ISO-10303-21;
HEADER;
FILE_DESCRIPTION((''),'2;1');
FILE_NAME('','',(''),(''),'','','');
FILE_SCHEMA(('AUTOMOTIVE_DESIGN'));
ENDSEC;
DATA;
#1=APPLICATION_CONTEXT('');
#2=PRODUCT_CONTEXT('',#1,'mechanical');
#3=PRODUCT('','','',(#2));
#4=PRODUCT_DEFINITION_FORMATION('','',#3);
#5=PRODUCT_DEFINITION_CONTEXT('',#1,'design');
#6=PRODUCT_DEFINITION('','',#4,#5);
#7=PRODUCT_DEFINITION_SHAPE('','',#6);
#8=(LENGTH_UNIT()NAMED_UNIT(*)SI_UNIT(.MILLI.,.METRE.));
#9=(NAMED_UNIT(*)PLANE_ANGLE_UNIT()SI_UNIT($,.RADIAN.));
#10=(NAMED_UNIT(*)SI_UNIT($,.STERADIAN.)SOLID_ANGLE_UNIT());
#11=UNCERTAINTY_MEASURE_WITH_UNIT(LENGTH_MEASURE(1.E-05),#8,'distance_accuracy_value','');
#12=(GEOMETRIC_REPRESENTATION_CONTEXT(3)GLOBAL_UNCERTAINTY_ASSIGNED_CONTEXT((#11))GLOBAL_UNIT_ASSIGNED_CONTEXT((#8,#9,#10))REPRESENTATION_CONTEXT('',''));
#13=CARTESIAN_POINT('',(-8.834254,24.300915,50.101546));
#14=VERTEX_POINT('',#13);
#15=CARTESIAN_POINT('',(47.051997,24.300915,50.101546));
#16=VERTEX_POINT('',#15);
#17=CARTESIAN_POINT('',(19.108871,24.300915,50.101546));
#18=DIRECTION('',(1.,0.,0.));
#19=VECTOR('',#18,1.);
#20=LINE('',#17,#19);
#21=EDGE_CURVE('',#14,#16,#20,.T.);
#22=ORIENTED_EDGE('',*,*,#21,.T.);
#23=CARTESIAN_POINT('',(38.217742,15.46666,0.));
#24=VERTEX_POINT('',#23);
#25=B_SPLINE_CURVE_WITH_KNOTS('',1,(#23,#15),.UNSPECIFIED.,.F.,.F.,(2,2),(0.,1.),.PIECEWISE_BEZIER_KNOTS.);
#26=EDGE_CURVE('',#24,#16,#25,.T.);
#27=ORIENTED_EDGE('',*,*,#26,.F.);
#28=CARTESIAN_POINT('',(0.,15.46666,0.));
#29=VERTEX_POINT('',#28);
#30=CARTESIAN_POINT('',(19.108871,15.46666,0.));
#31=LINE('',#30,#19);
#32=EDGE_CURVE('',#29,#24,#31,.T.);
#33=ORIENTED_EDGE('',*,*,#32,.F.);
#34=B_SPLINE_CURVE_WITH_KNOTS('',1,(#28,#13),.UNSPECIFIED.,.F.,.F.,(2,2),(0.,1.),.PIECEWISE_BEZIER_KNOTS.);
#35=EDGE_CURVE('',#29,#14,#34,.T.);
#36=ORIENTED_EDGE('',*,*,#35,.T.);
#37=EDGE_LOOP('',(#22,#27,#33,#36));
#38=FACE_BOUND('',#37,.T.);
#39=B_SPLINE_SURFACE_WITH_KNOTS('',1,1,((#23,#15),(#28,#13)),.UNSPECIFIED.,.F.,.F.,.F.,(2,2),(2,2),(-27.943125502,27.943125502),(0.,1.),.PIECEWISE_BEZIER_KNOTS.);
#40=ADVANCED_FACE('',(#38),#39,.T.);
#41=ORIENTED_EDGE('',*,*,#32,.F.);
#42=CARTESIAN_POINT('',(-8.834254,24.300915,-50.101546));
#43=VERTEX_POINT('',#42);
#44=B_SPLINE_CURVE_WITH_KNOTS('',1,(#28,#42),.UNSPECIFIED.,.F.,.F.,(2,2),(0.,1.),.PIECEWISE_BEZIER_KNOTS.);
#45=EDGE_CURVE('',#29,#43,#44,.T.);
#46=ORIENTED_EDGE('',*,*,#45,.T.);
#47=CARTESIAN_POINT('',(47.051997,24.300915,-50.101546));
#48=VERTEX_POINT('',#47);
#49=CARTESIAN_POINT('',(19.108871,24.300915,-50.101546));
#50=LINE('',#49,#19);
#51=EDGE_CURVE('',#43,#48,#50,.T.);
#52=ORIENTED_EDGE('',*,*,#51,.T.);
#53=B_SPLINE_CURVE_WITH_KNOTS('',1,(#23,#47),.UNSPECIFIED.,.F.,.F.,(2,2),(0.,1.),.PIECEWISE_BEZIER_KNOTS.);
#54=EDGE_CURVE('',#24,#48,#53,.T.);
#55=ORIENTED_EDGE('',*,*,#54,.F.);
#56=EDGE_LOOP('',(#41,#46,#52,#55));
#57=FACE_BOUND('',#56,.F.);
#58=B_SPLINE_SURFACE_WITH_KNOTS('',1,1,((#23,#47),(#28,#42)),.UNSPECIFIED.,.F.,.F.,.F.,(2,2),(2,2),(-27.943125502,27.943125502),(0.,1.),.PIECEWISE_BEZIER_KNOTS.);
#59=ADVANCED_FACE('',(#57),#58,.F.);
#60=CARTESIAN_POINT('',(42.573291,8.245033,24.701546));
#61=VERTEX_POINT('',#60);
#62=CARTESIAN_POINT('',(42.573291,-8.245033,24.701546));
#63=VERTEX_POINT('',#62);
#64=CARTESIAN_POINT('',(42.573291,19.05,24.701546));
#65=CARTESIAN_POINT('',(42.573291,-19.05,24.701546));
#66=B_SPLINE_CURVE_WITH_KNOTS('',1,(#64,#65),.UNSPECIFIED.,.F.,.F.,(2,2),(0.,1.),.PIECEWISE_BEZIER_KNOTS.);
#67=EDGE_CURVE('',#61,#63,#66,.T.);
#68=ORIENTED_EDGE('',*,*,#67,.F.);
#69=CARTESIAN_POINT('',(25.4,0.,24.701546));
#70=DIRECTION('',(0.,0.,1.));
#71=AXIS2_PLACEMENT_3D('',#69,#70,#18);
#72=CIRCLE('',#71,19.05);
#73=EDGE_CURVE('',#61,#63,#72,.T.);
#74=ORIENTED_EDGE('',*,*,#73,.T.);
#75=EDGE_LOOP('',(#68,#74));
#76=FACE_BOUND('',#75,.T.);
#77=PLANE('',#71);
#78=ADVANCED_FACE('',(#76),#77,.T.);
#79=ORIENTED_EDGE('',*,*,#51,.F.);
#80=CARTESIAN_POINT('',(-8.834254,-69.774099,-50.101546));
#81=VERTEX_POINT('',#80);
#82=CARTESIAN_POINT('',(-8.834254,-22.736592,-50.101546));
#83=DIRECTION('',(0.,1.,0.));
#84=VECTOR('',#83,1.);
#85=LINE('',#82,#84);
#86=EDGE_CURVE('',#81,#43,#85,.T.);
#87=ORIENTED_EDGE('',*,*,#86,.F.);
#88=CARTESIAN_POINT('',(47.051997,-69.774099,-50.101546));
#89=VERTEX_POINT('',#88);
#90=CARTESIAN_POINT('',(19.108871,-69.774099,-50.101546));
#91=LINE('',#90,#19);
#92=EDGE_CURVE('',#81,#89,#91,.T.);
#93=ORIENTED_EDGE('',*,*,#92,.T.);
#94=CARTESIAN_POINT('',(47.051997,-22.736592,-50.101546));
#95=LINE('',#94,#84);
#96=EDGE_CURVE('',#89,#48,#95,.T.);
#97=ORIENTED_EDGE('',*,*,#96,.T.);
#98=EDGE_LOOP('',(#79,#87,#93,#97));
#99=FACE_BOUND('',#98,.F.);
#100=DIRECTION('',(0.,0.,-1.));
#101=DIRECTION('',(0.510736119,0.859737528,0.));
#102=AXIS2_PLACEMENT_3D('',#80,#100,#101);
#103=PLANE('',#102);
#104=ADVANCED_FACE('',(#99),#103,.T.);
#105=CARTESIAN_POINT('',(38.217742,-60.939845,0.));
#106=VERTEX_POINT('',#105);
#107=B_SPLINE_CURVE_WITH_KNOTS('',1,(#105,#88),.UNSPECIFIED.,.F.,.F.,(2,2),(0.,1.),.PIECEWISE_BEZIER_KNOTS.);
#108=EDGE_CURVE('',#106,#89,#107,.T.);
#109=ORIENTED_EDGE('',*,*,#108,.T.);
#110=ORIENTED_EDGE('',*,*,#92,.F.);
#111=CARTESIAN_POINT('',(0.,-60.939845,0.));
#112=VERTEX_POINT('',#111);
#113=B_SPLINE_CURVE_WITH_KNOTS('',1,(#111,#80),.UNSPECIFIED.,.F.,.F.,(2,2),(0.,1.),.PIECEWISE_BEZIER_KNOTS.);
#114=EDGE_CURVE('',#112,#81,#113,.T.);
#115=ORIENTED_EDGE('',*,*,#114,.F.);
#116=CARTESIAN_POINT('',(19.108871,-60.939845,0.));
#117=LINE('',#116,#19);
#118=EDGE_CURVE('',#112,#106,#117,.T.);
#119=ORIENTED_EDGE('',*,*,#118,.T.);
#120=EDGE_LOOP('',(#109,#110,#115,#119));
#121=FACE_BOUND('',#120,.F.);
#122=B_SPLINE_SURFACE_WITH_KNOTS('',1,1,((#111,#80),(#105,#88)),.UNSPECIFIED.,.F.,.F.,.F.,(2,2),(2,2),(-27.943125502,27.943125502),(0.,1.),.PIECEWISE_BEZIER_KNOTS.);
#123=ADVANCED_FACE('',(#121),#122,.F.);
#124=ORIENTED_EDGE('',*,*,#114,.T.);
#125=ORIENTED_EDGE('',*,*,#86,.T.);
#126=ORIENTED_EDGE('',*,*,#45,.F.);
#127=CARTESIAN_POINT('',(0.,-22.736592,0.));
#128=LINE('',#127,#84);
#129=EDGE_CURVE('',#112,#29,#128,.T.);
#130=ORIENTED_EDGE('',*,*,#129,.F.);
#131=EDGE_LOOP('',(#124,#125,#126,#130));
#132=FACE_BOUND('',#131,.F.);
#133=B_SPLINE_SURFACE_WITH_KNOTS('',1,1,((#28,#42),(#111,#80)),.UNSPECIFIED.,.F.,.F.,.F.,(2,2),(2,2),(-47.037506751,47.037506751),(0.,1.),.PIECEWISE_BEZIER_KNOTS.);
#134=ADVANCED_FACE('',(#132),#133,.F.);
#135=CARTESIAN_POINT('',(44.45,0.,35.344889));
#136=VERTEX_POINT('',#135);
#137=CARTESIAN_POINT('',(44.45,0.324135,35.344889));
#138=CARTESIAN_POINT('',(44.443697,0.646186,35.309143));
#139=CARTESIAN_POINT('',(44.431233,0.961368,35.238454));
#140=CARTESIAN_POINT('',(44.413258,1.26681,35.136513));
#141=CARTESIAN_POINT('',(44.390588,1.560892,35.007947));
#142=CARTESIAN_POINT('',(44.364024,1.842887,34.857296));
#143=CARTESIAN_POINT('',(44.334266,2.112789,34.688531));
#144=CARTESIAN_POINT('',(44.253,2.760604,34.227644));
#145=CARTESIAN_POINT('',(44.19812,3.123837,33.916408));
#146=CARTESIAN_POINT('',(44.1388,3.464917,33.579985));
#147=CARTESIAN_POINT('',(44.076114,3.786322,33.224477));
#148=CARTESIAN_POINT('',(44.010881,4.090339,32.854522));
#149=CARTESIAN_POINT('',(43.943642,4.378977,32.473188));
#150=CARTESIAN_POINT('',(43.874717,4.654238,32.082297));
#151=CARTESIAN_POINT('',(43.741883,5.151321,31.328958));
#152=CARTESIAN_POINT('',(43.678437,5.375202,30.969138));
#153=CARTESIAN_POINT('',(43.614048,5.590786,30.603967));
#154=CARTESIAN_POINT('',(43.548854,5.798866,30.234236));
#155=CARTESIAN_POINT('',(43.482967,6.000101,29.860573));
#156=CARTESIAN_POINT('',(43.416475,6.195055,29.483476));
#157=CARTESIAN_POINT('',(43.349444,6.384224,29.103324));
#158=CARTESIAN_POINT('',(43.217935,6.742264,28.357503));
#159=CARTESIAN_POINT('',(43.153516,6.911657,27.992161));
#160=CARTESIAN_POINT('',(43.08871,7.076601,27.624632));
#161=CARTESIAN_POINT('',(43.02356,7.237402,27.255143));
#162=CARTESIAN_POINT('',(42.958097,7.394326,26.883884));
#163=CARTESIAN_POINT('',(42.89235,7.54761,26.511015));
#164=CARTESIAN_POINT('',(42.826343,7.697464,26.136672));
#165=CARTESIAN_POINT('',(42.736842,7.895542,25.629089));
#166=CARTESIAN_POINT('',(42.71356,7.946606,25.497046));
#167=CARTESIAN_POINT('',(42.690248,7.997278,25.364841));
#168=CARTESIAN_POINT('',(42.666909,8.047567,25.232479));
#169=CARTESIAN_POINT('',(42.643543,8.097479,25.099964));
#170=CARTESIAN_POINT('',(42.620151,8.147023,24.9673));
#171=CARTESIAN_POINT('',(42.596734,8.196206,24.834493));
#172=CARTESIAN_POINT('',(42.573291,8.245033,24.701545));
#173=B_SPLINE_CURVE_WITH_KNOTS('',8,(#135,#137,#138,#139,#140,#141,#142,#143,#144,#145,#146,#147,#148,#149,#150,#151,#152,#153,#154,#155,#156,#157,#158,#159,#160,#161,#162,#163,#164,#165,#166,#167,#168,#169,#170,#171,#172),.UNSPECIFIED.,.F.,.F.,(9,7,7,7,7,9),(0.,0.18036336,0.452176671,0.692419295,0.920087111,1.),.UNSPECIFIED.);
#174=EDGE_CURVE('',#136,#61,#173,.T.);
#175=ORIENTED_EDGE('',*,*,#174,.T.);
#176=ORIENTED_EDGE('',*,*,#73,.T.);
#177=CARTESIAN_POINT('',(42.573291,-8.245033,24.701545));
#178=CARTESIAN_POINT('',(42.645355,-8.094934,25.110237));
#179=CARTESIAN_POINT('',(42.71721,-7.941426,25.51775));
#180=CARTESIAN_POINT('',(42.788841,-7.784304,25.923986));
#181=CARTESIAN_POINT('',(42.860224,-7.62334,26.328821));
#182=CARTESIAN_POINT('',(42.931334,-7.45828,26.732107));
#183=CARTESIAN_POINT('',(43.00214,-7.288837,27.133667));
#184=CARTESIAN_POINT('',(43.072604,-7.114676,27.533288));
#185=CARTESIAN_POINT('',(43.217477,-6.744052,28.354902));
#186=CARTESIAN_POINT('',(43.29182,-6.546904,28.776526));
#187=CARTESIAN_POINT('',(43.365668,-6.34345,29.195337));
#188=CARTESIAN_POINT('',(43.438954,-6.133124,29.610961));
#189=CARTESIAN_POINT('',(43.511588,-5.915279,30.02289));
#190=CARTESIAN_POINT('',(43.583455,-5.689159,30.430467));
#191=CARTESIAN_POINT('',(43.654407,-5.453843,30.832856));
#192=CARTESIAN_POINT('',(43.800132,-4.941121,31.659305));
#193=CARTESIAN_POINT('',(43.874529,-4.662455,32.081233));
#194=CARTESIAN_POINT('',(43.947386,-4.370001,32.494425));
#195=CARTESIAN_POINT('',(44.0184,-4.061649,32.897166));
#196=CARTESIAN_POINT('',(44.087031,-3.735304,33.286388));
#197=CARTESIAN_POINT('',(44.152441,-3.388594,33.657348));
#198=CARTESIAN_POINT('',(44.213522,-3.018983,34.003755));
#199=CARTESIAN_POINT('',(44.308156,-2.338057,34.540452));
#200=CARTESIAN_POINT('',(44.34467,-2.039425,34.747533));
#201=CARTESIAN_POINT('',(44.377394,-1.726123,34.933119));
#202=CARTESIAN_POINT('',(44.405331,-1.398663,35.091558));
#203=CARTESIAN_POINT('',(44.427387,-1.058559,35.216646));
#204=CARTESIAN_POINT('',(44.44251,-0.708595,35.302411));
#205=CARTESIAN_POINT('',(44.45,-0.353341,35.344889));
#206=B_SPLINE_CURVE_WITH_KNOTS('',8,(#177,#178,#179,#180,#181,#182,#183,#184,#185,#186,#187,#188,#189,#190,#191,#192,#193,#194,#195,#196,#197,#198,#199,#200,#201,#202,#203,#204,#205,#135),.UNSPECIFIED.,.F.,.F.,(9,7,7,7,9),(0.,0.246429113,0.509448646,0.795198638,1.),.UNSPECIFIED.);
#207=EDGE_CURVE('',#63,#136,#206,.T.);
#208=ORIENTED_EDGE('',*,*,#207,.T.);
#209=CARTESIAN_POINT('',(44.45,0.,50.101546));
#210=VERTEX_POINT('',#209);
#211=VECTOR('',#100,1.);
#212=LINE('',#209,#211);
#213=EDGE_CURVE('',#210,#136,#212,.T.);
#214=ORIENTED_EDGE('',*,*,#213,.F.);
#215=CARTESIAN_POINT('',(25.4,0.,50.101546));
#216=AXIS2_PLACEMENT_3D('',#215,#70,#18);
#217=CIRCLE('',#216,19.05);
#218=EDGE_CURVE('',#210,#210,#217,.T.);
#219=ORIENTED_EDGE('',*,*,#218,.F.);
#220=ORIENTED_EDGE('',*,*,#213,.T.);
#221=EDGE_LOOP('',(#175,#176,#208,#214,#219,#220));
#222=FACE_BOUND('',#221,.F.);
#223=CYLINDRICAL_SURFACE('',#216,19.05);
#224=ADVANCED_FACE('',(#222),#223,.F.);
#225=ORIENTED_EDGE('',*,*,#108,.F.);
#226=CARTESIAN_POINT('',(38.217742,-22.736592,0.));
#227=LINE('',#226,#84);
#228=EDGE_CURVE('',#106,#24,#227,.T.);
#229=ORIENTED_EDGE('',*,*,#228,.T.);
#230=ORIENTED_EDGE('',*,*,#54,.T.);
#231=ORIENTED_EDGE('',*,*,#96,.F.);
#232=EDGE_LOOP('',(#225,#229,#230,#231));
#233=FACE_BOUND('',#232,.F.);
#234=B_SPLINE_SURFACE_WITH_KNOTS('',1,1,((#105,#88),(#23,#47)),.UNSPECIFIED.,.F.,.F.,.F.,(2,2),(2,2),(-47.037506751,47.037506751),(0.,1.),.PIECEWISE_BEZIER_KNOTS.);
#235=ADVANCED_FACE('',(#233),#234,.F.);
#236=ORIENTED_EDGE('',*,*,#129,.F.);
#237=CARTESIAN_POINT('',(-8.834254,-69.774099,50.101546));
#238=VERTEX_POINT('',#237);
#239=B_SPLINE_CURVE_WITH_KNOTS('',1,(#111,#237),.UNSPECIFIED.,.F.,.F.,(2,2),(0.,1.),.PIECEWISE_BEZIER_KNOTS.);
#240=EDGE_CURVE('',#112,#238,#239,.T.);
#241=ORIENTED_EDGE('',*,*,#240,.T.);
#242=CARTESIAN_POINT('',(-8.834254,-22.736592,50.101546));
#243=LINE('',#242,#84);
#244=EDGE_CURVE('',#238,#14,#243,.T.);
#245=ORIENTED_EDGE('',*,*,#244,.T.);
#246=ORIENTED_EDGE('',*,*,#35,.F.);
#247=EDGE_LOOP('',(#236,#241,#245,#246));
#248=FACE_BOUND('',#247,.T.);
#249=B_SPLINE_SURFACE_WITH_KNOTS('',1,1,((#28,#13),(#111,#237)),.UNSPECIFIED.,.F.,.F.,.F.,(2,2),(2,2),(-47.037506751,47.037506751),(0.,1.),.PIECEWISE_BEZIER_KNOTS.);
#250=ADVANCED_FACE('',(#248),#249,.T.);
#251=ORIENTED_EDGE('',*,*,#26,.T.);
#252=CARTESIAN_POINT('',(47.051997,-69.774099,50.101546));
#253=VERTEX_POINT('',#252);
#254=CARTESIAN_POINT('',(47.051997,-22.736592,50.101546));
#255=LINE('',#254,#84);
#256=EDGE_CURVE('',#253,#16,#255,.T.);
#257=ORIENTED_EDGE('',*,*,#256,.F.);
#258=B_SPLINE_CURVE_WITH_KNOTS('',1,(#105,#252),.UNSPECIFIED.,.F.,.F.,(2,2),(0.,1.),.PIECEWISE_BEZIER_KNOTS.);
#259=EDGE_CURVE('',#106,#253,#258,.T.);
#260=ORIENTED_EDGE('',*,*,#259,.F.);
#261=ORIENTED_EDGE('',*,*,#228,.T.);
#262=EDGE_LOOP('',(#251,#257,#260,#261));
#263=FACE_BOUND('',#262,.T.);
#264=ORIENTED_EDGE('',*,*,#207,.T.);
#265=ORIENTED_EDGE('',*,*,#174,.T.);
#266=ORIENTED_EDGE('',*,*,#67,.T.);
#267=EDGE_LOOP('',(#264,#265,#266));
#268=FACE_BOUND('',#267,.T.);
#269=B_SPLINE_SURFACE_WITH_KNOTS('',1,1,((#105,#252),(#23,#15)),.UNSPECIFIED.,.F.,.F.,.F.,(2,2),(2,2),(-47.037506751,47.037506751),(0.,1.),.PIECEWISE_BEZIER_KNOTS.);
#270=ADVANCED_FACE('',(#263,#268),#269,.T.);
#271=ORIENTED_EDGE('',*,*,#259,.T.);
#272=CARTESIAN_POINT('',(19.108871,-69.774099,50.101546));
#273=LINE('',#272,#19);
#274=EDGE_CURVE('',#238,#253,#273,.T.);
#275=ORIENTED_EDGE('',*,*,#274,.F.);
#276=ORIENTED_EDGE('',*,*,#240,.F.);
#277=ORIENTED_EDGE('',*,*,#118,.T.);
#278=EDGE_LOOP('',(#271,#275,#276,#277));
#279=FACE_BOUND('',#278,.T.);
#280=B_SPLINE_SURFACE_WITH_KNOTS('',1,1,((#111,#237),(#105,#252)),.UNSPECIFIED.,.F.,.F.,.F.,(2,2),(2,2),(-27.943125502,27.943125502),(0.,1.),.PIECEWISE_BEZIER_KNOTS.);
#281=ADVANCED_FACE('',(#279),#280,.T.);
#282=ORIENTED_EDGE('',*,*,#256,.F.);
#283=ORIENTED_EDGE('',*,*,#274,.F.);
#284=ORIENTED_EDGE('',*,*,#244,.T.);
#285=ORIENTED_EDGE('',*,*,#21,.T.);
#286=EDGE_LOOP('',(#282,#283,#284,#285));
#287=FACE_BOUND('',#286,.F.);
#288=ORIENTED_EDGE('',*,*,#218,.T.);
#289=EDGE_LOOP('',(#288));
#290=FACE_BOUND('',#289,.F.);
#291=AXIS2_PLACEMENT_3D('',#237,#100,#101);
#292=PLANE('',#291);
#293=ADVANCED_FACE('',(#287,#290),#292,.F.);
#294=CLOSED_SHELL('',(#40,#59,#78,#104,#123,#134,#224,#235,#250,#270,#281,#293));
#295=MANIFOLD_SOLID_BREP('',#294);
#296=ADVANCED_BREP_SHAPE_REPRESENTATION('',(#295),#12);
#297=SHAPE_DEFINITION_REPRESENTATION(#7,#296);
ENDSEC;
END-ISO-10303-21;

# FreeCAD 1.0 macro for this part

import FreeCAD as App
import Part
import Sketcher
from FreeCAD import Vector
Q = App.Units.Quantity


def add_polygon(sketch, points):
    """Adds a closed chain of lines whose ends are joined by coincident constraints."""
    first, n = sketch.GeometryCount, len(points)
    for a, b in zip(points, points[1:] + points[:1]):
        sketch.addGeometry(Part.LineSegment(App.Vector(*a, 0), App.Vector(*b, 0)), False)
    for i in range(n):
        sketch.addConstraint(Sketcher.Constraint("Coincident", first + i, 2, first + (i + 1) % n, 1))

doc = App.newDocument("Part")
body = doc.addObject("PartDesign::Body", "Body")

sketch1 = doc.addObject("Sketcher::SketchObject", "Sketch")
body.addObject(sketch1)
sketch1.AttachmentSupport = (doc.XY_Plane, [""])
sketch1.MapMode = "FlatFace"
add_polygon(sketch1, [(0, 15), (0, -61), (38, -61), (38, 15)])
sketch1.addConstraint([
    Sketcher.Constraint("Vertical", 0),
    Sketcher.Constraint("Horizontal", 1),
    Sketcher.Constraint("Vertical", 2),
    Sketcher.Constraint("Horizontal", 3),
    Sketcher.Constraint("PointOnObject", 0, 2, -2),
    Sketcher.Constraint("DistanceX", 1, 1, 1, 2, Q("38.217742 mm")),
    Sketcher.Constraint("DistanceY", 0, 2, 0, 1, Q("76.406505 mm")),
    Sketcher.Constraint("DistanceY", -1, 1, 2, 2, Q("15.46666 mm")),
])
pad1 = doc.addObject("PartDesign::Pad", "Pad")
body.addObject(pad1)
pad1.Profile = sketch1
pad1.Length = 100.203091
pad1.Midplane = True
pad1.TaperAngle = 10

sketch2 = doc.addObject("Sketcher::SketchObject", "Sketch001")
body.addObject(sketch2)
sketch2.AttachmentSupport = (doc.XY_Plane, [""])
sketch2.MapMode = "FlatFace"
sketch2.AttachmentOffset = App.Placement(Vector(0, 0, 50.101546), App.Rotation())
sketch2.addGeometry(Part.Circle(Vector(25, 0, 0), Vector(0, 0, 1), 19), False)
sketch2.addConstraint([
    Sketcher.Constraint("PointOnObject", 0, 3, -1),
    Sketcher.Constraint("Diameter", 0, Q("1.5 in")),
    Sketcher.Constraint("DistanceX", -1, 1, 0, 3, Q("1 in")),
])
pocket1 = doc.addObject("PartDesign::Pocket", "Pocket")
body.addObject(pocket1)
pocket1.Profile = sketch2
pocket1.Length = Q("1 in")

doc.recompute()
